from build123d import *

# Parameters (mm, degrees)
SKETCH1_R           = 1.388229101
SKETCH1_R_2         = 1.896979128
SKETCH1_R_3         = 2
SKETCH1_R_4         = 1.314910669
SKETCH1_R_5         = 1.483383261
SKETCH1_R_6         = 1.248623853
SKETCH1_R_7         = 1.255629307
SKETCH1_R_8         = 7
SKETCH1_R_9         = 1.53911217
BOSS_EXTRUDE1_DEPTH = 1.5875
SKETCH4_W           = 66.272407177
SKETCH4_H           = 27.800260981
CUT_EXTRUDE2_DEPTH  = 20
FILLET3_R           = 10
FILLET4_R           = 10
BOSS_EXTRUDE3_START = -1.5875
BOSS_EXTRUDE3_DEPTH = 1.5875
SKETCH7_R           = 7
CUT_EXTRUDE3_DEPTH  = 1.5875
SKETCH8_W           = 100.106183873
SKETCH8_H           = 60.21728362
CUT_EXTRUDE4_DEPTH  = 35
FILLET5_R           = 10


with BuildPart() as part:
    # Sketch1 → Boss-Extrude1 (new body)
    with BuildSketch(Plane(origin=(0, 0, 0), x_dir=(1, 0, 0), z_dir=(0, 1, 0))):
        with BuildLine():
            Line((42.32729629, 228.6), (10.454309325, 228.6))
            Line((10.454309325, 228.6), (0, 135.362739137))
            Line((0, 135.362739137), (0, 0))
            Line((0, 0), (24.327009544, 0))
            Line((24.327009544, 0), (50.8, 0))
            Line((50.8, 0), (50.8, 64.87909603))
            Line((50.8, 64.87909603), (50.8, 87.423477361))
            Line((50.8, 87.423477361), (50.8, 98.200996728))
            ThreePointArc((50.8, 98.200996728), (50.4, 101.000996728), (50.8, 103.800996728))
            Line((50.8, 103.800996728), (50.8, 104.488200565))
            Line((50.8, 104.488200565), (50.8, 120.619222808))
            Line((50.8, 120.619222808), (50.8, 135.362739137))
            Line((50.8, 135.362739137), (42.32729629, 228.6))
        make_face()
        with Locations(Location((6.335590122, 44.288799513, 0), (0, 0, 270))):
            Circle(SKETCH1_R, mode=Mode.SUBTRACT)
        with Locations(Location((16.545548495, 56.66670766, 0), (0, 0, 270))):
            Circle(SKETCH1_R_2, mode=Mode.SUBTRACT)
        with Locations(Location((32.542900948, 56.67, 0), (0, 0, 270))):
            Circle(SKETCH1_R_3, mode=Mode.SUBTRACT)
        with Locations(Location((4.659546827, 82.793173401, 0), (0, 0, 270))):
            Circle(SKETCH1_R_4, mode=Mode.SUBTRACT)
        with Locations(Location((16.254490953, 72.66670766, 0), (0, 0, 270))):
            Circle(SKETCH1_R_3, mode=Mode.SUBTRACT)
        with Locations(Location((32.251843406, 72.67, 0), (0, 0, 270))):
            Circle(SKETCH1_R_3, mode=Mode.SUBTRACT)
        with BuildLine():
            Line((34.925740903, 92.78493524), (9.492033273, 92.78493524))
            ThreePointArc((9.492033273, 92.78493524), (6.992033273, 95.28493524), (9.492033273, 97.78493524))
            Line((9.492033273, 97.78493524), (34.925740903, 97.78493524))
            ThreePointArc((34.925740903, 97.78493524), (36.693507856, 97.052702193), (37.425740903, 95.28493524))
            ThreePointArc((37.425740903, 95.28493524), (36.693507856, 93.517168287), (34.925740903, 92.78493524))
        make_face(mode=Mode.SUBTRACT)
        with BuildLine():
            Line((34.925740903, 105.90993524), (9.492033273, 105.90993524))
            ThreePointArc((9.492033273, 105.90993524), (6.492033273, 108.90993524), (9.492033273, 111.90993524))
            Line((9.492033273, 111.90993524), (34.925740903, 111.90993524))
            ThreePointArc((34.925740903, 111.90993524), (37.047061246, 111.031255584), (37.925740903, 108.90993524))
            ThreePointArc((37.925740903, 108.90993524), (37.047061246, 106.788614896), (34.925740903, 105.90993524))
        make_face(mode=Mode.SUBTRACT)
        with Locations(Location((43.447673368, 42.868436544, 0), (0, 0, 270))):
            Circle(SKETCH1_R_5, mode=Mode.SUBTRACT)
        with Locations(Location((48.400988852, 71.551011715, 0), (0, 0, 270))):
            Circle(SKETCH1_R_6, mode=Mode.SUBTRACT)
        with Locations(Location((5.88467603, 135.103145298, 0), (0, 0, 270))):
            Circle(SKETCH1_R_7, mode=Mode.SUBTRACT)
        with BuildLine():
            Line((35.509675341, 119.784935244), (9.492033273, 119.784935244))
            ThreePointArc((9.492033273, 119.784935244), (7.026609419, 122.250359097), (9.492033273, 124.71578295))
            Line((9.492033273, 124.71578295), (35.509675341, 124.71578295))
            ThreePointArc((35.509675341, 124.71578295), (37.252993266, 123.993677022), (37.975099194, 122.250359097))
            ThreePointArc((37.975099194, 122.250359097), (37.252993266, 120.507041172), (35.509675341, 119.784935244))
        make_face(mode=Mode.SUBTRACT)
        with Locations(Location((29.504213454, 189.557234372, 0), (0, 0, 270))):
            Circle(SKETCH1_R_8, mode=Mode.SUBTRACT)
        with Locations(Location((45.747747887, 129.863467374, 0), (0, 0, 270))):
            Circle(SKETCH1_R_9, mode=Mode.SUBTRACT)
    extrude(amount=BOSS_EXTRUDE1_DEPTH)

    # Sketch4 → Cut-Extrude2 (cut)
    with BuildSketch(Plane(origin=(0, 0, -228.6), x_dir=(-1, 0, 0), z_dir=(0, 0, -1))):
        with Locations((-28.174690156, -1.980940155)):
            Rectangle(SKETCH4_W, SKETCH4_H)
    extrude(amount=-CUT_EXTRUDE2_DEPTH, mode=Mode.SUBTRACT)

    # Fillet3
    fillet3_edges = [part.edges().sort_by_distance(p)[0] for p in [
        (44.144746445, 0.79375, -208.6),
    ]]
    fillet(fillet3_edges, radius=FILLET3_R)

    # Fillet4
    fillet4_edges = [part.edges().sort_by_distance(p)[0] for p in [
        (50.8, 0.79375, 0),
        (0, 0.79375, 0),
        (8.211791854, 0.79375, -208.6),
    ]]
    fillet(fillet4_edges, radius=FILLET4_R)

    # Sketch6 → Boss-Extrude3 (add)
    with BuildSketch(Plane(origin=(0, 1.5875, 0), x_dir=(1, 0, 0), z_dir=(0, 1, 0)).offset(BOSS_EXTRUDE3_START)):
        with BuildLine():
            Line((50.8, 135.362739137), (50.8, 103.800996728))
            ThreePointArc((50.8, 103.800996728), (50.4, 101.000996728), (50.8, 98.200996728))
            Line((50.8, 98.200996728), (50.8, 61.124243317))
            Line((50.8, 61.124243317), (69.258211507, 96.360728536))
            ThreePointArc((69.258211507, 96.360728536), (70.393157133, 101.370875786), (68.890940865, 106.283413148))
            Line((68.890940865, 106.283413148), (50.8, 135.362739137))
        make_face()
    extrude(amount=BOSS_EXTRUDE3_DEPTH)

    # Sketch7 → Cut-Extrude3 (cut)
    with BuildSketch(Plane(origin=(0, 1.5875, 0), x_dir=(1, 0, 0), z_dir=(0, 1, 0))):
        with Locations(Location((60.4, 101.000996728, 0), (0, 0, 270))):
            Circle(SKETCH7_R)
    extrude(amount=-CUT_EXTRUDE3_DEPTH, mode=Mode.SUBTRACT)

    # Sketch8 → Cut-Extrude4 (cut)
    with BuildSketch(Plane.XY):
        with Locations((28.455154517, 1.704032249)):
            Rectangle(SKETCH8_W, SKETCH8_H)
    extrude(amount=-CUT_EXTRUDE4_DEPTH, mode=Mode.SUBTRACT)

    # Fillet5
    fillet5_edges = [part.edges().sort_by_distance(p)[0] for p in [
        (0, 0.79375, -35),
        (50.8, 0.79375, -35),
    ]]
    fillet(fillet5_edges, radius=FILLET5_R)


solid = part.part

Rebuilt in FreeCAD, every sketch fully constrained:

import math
import FreeCAD as App
import Part
import Sketcher

V = App.Vector
Q = App.Units.Quantity


def edges_at(feature, points):
    """Names of the edges that pass closest to the given points."""
    edges = feature.Shape.Edges
    near = lambda p: min(range(len(edges)), key=lambda i: edges[i].distToShape(Part.Vertex(*p))[0])
    return sorted({f"Edge{near(p) + 1}" for p in points})

doc = App.newDocument("Part")
params = doc.addObject("Spreadsheet::Sheet", "Params")
for row, (alias, value) in enumerate([
    ("sketch1_diameter", "4 mm"),
    ("sketch1_diameter2", "14 mm"),
    ("sketch1_radius", "10 mm"),
    ("sketch1_radius2", "3 mm"),
    ("sketch1_radius3", "2.5 mm"),
    ("pad1_length", "1.5875 mm"),
    ("pocket1_length", "20 mm"),
    ("fillet_radius", "10 mm"),
    ("fillet2_radius", "10 mm"),
    ("sketch3_radius", "10 mm"),
    ("pad2_length", "1.5875 mm"),
    ("sketch4_diameter", "14 mm"),
    ("pocket2_length", "1.5875 mm"),
    ("pocket3_length", "35 mm"),
    ("fillet3_radius", "10 mm"),
], start=1):
    params.set(f"A{row}", alias)
    params.set(f"B{row}", "=" + value)
    params.setAlias(f"B{row}", alias)

body = doc.addObject("PartDesign::Body", "Body")

sketch1 = doc.addObject("Sketcher::SketchObject", "Sketch")
body.addObject(sketch1)
sketch1.AttachmentSupport = (doc.XZ_Plane, [""])
sketch1.MapMode = "FlatFace"
sketch1.addGeometry(Part.LineSegment(V(42.3, -228.6, 0), V(10.5, -228.6, 0)), False)
sketch1.addGeometry(Part.LineSegment(V(10.5, -228.6, 0), V(0, -135.4, 0)), False)
sketch1.addGeometry(Part.LineSegment(V(0, -135.4, 0), V(0, 0, 0)), False)
sketch1.addGeometry(Part.LineSegment(V(0, 0, 0), V(50.8, 0, 0)), False)
sketch1.addGeometry(Part.LineSegment(V(50.8, 0, 0), V(50.8, -98.2, 0)), False)
sketch1.addGeometry(Part.ArcOfCircle(Part.Circle(V(60.4, -101, 0), V(0, 0, 1), 10), math.radians(164), math.radians(196)), False)
sketch1.addGeometry(Part.LineSegment(V(50.8, -103.8, 0), V(50.8, -135.4, 0)), False)
sketch1.addGeometry(Part.LineSegment(V(50.8, -135.4, 0), V(42.3, -228.6, 0)), False)
sketch1.addGeometry(Part.Circle(V(6.3, -44.3, 0), V(0, 0, 1), 1.4), False)
sketch1.addGeometry(Part.Circle(V(16.5, -56.7, 0), V(0, 0, 1), 1.9), False)
sketch1.addGeometry(Part.Circle(V(16.3, -72.7, 0), V(0, 0, 1), 2), False)
sketch1.addGeometry(Part.Circle(V(4.7, -82.8, 0), V(0, 0, 1), 1.3), False)
sketch1.addGeometry(Part.ArcOfCircle(Part.Circle(V(34.9, -95.3, 0), V(0, 0, 1), 2.5), math.radians(0), math.radians(90)), False)
sketch1.addGeometry(Part.LineSegment(V(34.9, -92.8, 0), V(9.5, -92.8, 0)), False)
sketch1.addGeometry(Part.ArcOfCircle(Part.Circle(V(9.5, -95.3, 0), V(0, 0, 1), 2.5), math.radians(90), math.radians(270)), False)
sketch1.addGeometry(Part.LineSegment(V(9.5, -97.8, 0), V(34.9, -97.8, 0)), False)
sketch1.addGeometry(Part.ArcOfCircle(Part.Circle(V(34.9, -95.3, 0), V(0, 0, 1), 2.5), math.radians(-90), math.radians(0)), False)
sketch1.addGeometry(Part.ArcOfCircle(Part.Circle(V(34.9, -108.9, 0), V(0, 0, 1), 3), math.radians(0), math.radians(90)), False)
sketch1.addGeometry(Part.LineSegment(V(34.9, -105.9, 0), V(9.5, -105.9, 0)), False)
sketch1.addGeometry(Part.ArcOfCircle(Part.Circle(V(9.5, -108.9, 0), V(0, 0, 1), 3), math.radians(90), math.radians(270)), False)
sketch1.addGeometry(Part.LineSegment(V(9.5, -111.9, 0), V(34.9, -111.9, 0)), False)
sketch1.addGeometry(Part.ArcOfCircle(Part.Circle(V(34.9, -108.9, 0), V(0, 0, 1), 3), math.radians(-90), math.radians(0)), False)
sketch1.addGeometry(Part.Circle(V(32.5, -56.7, 0), V(0, 0, 1), 2), False)
sketch1.addGeometry(Part.Circle(V(32.3, -72.7, 0), V(0, 0, 1), 2), False)
sketch1.addGeometry(Part.Circle(V(43.4, -42.9, 0), V(0, 0, 1), 1.5), False)
sketch1.addGeometry(Part.Circle(V(48.4, -71.6, 0), V(0, 0, 1), 1.2), False)
sketch1.addGeometry(Part.Circle(V(5.9, -135.1, 0), V(0, 0, 1), 1.3), False)
sketch1.addGeometry(Part.ArcOfCircle(Part.Circle(V(35.5, -122.3, 0), V(0, 0, 1), 2.5), math.radians(0), math.radians(90)), False)
sketch1.addGeometry(Part.LineSegment(V(35.5, -119.8, 0), V(9.5, -119.8, 0)), False)
sketch1.addGeometry(Part.ArcOfCircle(Part.Circle(V(9.5, -122.3, 0), V(0, 0, 1), 2.5), math.radians(90), math.radians(270)), False)
sketch1.addGeometry(Part.LineSegment(V(9.5, -124.7, 0), V(35.5, -124.7, 0)), False)
sketch1.addGeometry(Part.ArcOfCircle(Part.Circle(V(35.5, -122.3, 0), V(0, 0, 1), 2.5), math.radians(-90), math.radians(0)), False)
sketch1.addGeometry(Part.Circle(V(45.7, -129.9, 0), V(0, 0, 1), 1.5), False)
sketch1.addGeometry(Part.Circle(V(29.5, -189.6, 0), V(0, 0, 1), 7), False)
sketch1.addConstraint(Sketcher.Constraint("Coincident", 0, 2, 1, 1))
sketch1.addConstraint(Sketcher.Constraint("Coincident", 1, 2, 2, 1))
sketch1.addConstraint(Sketcher.Constraint("Coincident", 2, 2, 3, 1))
sketch1.addConstraint(Sketcher.Constraint("Coincident", 3, 2, 4, 1))
sketch1.addConstraint(Sketcher.Constraint("Coincident", 4, 2, 5, 1))
sketch1.addConstraint(Sketcher.Constraint("Coincident", 5, 2, 6, 1))
sketch1.addConstraint(Sketcher.Constraint("Coincident", 6, 2, 7, 1))
sketch1.addConstraint(Sketcher.Constraint("Coincident", 7, 2, 0, 1))
sketch1.addConstraint(Sketcher.Constraint("Tangent", 12, 2, 13, 1))
sketch1.addConstraint(Sketcher.Constraint("Tangent", 13, 2, 14, 1))
sketch1.addConstraint(Sketcher.Constraint("Tangent", 14, 2, 15, 1))
sketch1.addConstraint(Sketcher.Constraint("Tangent", 15, 2, 16, 1))
sketch1.addConstraint(Sketcher.Constraint("Tangent", 16, 2, 12, 1))
sketch1.addConstraint(Sketcher.Constraint("Tangent", 17, 2, 18, 1))
sketch1.addConstraint(Sketcher.Constraint("Tangent", 18, 2, 19, 1))
sketch1.addConstraint(Sketcher.Constraint("Tangent", 19, 2, 20, 1))
sketch1.addConstraint(Sketcher.Constraint("Tangent", 20, 2, 21, 1))
sketch1.addConstraint(Sketcher.Constraint("Tangent", 21, 2, 17, 1))
sketch1.addConstraint(Sketcher.Constraint("Tangent", 27, 2, 28, 1))
sketch1.addConstraint(Sketcher.Constraint("Tangent", 28, 2, 29, 1))
sketch1.addConstraint(Sketcher.Constraint("Tangent", 29, 2, 30, 1))
sketch1.addConstraint(Sketcher.Constraint("Tangent", 30, 2, 31, 1))
sketch1.addConstraint(Sketcher.Constraint("Tangent", 31, 2, 27, 1))
sketch1.addConstraint(Sketcher.Constraint("Horizontal", 0))
sketch1.addConstraint(Sketcher.Constraint("Vertical", 2))
sketch1.addConstraint(Sketcher.Constraint("Horizontal", 3))
sketch1.addConstraint(Sketcher.Constraint("Vertical", 4))
sketch1.addConstraint(Sketcher.Constraint("Vertical", 6))
sketch1.addConstraint(Sketcher.Constraint("Horizontal", 13))
sketch1.addConstraint(Sketcher.Constraint("Horizontal", 15))
sketch1.addConstraint(Sketcher.Constraint("Horizontal", 18))
sketch1.addConstraint(Sketcher.Constraint("Horizontal", 20))
sketch1.addConstraint(Sketcher.Constraint("Horizontal", 28))
sketch1.addConstraint(Sketcher.Constraint("Horizontal", 30))
sketch1.addConstraint(Sketcher.Constraint("Coincident", 2, 2, -1, 1))
sketch1.addConstraint(Sketcher.Constraint("Equal", 12, 14))
sketch1.addConstraint(Sketcher.Constraint("Equal", 17, 19))
sketch1.addConstraint(Sketcher.Constraint("Equal", 10, 22))
sketch1.addConstraint(Sketcher.Constraint("Equal", 22, 23))
sketch1.addConstraint(Sketcher.Constraint("Equal", 27, 29))
sketch1.addConstraint(Sketcher.Constraint("Horizontal", 1, 2, 6, 2))
sketch1.addConstraint(Sketcher.Constraint("Horizontal", 14, 3, 16, 2))
sketch1.addConstraint(Sketcher.Constraint("Horizontal", 19, 3, 21, 2))
sketch1.addConstraint(Sketcher.Constraint("Horizontal", 29, 3, 31, 2))
sketch1.addConstraint(Sketcher.Constraint("Vertical", 16, 3, 17, 3))
sketch1.addConstraint(Sketcher.Constraint("Vertical", 14, 3, 19, 3))
sketch1.addConstraint(Sketcher.Constraint("Vertical", 19, 3, 29, 3))
sketch1.addConstraint(Sketcher.Constraint("Vertical", 4, 2, 5, 2))
sketch1.addConstraint(Sketcher.Constraint("Diameter", 10, Q("4 mm")))
sketch1.addConstraint(Sketcher.Constraint("Diameter", 33, Q("14 mm")))
sketch1.addConstraint(Sketcher.Constraint("Radius", 5, Q("10 mm")))
sketch1.addConstraint(Sketcher.Constraint("Radius", 17, Q("3 mm")))
sketch1.addConstraint(Sketcher.Constraint("Radius", 12, Q("2.5 mm")))
sketch1.addConstraint(Sketcher.Constraint("DistanceX", 3, 1, 3, 2, Q("50.8 mm")))
sketch1.addConstraint(Sketcher.Constraint("DistanceY", 10, 3, 9, 3, Q("16 mm")))
sketch1.addConstraint(Sketcher.Constraint("DistanceY", 23, 3, 22, 3, Q("16 mm")))
sketch1.addConstraint(Sketcher.Constraint("DistanceX", -1, 1, 5, 3, Q("60.4 mm")))
sketch1.addConstraint(Sketcher.Constraint("DistanceY", 0, 2, -1, 1, Q("228.6 mm")))
sketch1.addConstraint(Sketcher.Constraint("Diameter", 8, Q("2.776458 mm")))
sketch1.addConstraint(Sketcher.Constraint("Diameter", 9, Q("3.793958 mm")))
sketch1.addConstraint(Sketcher.Constraint("Diameter", 11, Q("2.629821 mm")))
sketch1.addConstraint(Sketcher.Constraint("Diameter", 26, Q("2.511259 mm")))
sketch1.addConstraint(Sketcher.Constraint("DistanceY", 22, 3, -1, 1, Q("56.67 mm")))
sketch1.addConstraint(Sketcher.Constraint("Diameter", 24, Q("2.966767 mm")))
sketch1.addConstraint(Sketcher.Constraint("Diameter", 25, Q("2.497248 mm")))
sketch1.addConstraint(Sketcher.Constraint("Diameter", 32, Q("3.078224 mm")))
sketch1.addConstraint(Sketcher.Constraint("Radius", 27, Q("2.465424 mm")))
sketch1.addConstraint(Sketcher.Constraint("DistanceX", 11, 3, 9, 3, Q("11.886002 mm")))
sketch1.addConstraint(Sketcher.Constraint("DistanceY", 17, 3, 12, 3, Q("13.625 mm")))
sketch1.addConstraint(Sketcher.Constraint("DistanceY", 27, 2, 20, 2, Q("7.875 mm")))
sketch1.addConstraint(Sketcher.Constraint("DistanceY", 2, 1, 2, 2, Q("135.362739 mm")))
sketch1.addConstraint(Sketcher.Constraint("DistanceY", 8, 3, -1, 1, Q("44.2888 mm")))
sketch1.addConstraint(Sketcher.Constraint("DistanceX", -1, 1, 22, 3, Q("32.542901 mm")))
sketch1.addConstraint(Sketcher.Constraint("DistanceX", -1, 1, 31, 2, Q("37.975099 mm")))
sketch1.addConstraint(Sketcher.Constraint("DistanceX", 8, 3, 10, 3, Q("9.918901 mm")))
sketch1.addConstraint(Sketcher.Constraint("Distance", 1, Q("93.821529 mm")))
sketch1.addConstraint(Sketcher.Constraint("DistanceX", 0, 2, 0, 1, Q("31.872987 mm")))
sketch1.addConstraint(Sketcher.Constraint("DistanceX", 13, 2, 13, 1, Q("25.433708 mm")))
sketch1.addConstraint(Sketcher.Constraint("DistanceX", 28, 2, 28, 1, Q("26.017642 mm")))
sketch1.addConstraint(Sketcher.Constraint("DistanceY", 4, 2, 4, 1, Q("98.200997 mm")))
sketch1.addConstraint(Sketcher.Constraint("DistanceX", -1, 1, 8, 3, Q("6.33559 mm")))
sketch1.addConstraint(Sketcher.Constraint("DistanceX", -1, 1, 9, 3, Q("16.545548 mm")))
sketch1.addConstraint(Sketcher.Constraint("DistanceX", -1, 1, 25, 3, Q("48.400989 mm")))
sketch1.addConstraint(Sketcher.Constraint("DistanceY", 25, 3, -1, 1, Q("71.551012 mm")))
sketch1.addConstraint(Sketcher.Constraint("DistanceY", 27, 3, -1, 1, Q("122.250359 mm")))
sketch1.addConstraint(Sketcher.Constraint("DistanceY", 9, 3, 8, 3, Q("12.377908 mm")))
sketch1.addConstraint(Sketcher.Constraint("DistanceY", 12, 3, 11, 3, Q("12.491762 mm")))
sketch1.addConstraint(Sketcher.Constraint("DistanceY", 9, 3, 24, 3, Q("13.798271 mm")))
sketch1.addConstraint(Sketcher.Constraint("DistanceX", 23, 3, 24, 3, Q("11.19583 mm")))
sketch1.addConstraint(Sketcher.Constraint("DistanceY", 26, 3, 19, 3, Q("26.19321 mm")))
sketch1.addConstraint(Sketcher.Constraint("DistanceY", 32, 3, 27, 3, Q("7.613108 mm")))
sketch1.addConstraint(Sketcher.Constraint("DistanceY", 33, 3, 26, 3, Q("54.454089 mm")))
sketch1.addConstraint(Sketcher.Constraint("DistanceX", 33, 3, 27, 3, Q("6.005462 mm")))
sketch1.addConstraint(Sketcher.Constraint("DistanceX", 0, 2, 32, 3, Q("35.293439 mm")))
sketch1.addConstraint(Sketcher.Constraint("DistanceX", 26, 3, 7, 2, Q("36.44262 mm")))
sketch1.addConstraint(Sketcher.Constraint("DistanceX", -1, 1, 23, 3, Q("32.251843 mm")))
sketch1.setExpression("Constraints[48]", "Params.sketch1_diameter")
sketch1.setExpression("Constraints[49]", "Params.sketch1_diameter2")
sketch1.setExpression("Constraints[50]", "Params.sketch1_radius")
sketch1.setExpression("Constraints[51]", "Params.sketch1_radius2")
sketch1.setExpression("Constraints[52]", "Params.sketch1_radius3")
pad1 = doc.addObject("PartDesign::Pad", "Pad")
body.addObject(pad1)
pad1.Profile = sketch1
pad1.setExpression("Length", "Params.pad1_length")
pad1.Reversed = True

sketch2 = doc.addObject("Sketcher::SketchObject", "Sketch001")
body.addObject(sketch2)
sketch2.AttachmentSupport = (doc.XY_Plane, [""])
sketch2.MapMode = "FlatFace"
sketch2.AttachmentOffset = App.Placement(V(0, 0, -228.6), App.Rotation())
sketch2.addGeometry(Part.LineSegment(V(61, 12, 0), V(61, -16, 0)), False)
sketch2.addGeometry(Part.LineSegment(V(61, -16, 0), V(-5, -16, 0)), False)
sketch2.addGeometry(Part.LineSegment(V(-5, -16, 0), V(-5, 12, 0)), False)
sketch2.addGeometry(Part.LineSegment(V(-5, 12, 0), V(61, 12, 0)), False)
sketch2.addConstraint(Sketcher.Constraint("Coincident", 0, 2, 1, 1))
sketch2.addConstraint(Sketcher.Constraint("Coincident", 1, 2, 2, 1))
sketch2.addConstraint(Sketcher.Constraint("Coincident", 2, 2, 3, 1))
sketch2.addConstraint(Sketcher.Constraint("Coincident", 3, 2, 0, 1))
sketch2.addConstraint(Sketcher.Constraint("Vertical", 0))
sketch2.addConstraint(Sketcher.Constraint("Horizontal", 1))
sketch2.addConstraint(Sketcher.Constraint("Vertical", 2))
sketch2.addConstraint(Sketcher.Constraint("Horizontal", 3))
sketch2.addConstraint(Sketcher.Constraint("DistanceY", 0, 2, 0, 1, Q("27.800261 mm")))
sketch2.addConstraint(Sketcher.Constraint("DistanceX", 1, 2, 1, 1, Q("66.272407 mm")))
sketch2.addConstraint(Sketcher.Constraint("DistanceY", 0, 2, -1, 1, Q("15.881071 mm")))
sketch2.addConstraint(Sketcher.Constraint("DistanceX", -1, 1, 0, 2, Q("61.310894 mm")))
pocket1 = doc.addObject("PartDesign::Pocket", "Pocket")
body.addObject(pocket1)
pocket1.Profile = sketch2
pocket1.setExpression("Length", "Params.pocket1_length")
pocket1.Reversed = True
doc.recompute()

fillet = doc.addObject("PartDesign::Fillet", "Fillet")
body.addObject(fillet)
fillet.Base = (pocket1, edges_at(pocket1, [(44.145, 0.794, -208.6)]))
fillet.setExpression("Radius", "Params.fillet_radius")
doc.recompute()

fillet2 = doc.addObject("PartDesign::Fillet", "Fillet001")
body.addObject(fillet2)
fillet2.Base = (fillet, edges_at(fillet, [(50.8, 0.794, 0), (0, 0.794, 0), (8.212, 0.794, -208.6)]))
fillet2.setExpression("Radius", "Params.fillet2_radius")

sketch3 = doc.addObject("Sketcher::SketchObject", "Sketch002")
body.addObject(sketch3)
sketch3.AttachmentSupport = (doc.XZ_Plane, [""])
sketch3.MapMode = "FlatFace"
sketch3.addGeometry(Part.LineSegment(V(51, -135, 0), V(51, -104, 0)), False)
sketch3.addGeometry(Part.ArcOfCircle(Part.Circle(V(60, -101, 0), V(0, 0, 1), 10), math.radians(164), math.radians(196)), False)
sketch3.addGeometry(Part.LineSegment(V(51, -98, 0), V(51, -61, 0)), False)
sketch3.addGeometry(Part.LineSegment(V(51, -61, 0), V(69, -96, 0)), False)
sketch3.addGeometry(Part.ArcOfCircle(Part.Circle(V(60, -101, 0), V(0, 0, 1), 10), math.radians(-32), math.radians(28)), False)
sketch3.addGeometry(Part.LineSegment(V(69, -106, 0), V(51, -135, 0)), False)
sketch3.addConstraint(Sketcher.Constraint("Coincident", 0, 2, 1, 2))
sketch3.addConstraint(Sketcher.Constraint("Coincident", 1, 1, 2, 1))
sketch3.addConstraint(Sketcher.Constraint("Coincident", 2, 2, 3, 1))
sketch3.addConstraint(Sketcher.Constraint("Tangent", 3, 2, 4, 2))
sketch3.addConstraint(Sketcher.Constraint("Tangent", 4, 1, 5, 1))
sketch3.addConstraint(Sketcher.Constraint("Coincident", 5, 2, 0, 1))
sketch3.addConstraint(Sketcher.Constraint("Vertical", 0))
sketch3.addConstraint(Sketcher.Constraint("Vertical", 2))
sketch3.addConstraint(Sketcher.Constraint("Coincident", 4, 3, 1, 3))
sketch3.addConstraint(Sketcher.Constraint("Equal", 1, 4))
sketch3.addConstraint(Sketcher.Constraint("Vertical", 0, 2, 1, 1))
sketch3.addConstraint(Sketcher.Constraint("Radius", 1, Q("10 mm")))
sketch3.addConstraint(Sketcher.Constraint("DistanceX", -1, 1, 1, 3, Q("60.4 mm")))
sketch3.addConstraint(Sketcher.Constraint("DistanceX", -1, 1, 0, 2, Q("50.8 mm")))
sketch3.addConstraint(Sketcher.Constraint("Distance", 3, Q("39.778329 mm")))
sketch3.addConstraint(Sketcher.Constraint("DistanceY", 0, 1, 0, 2, Q("31.561742 mm")))
sketch3.addConstraint(Sketcher.Constraint("DistanceY", 3, 2, -1, 1, Q("96.360729 mm")))
sketch3.setExpression("Constraints[11]", "Params.sketch3_radius")
pad2 = doc.addObject("PartDesign::Pad", "Pad001")
body.addObject(pad2)
pad2.Profile = sketch3
pad2.setExpression("Length", "Params.pad2_length")
pad2.Reversed = True

sketch4 = doc.addObject("Sketcher::SketchObject", "Sketch003")
body.addObject(sketch4)
sketch4.AttachmentSupport = (doc.XZ_Plane, [""])
sketch4.MapMode = "FlatFace"
sketch4.AttachmentOffset = App.Placement(V(0, 0, -1.5875), App.Rotation())
sketch4.addGeometry(Part.Circle(V(60, -101, 0), V(0, 0, 1), 7), False)
sketch4.addConstraint(Sketcher.Constraint("Diameter", 0, Q("14 mm")))
sketch4.addConstraint(Sketcher.Constraint("DistanceX", -1, 1, 0, 3, Q("60.4 mm")))
sketch4.addConstraint(Sketcher.Constraint("DistanceY", 0, 3, -1, 1, Q("101.000997 mm")))
sketch4.setExpression("Constraints[0]", "Params.sketch4_diameter")
pocket2 = doc.addObject("PartDesign::Pocket", "Pocket001")
body.addObject(pocket2)
pocket2.Profile = sketch4
pocket2.setExpression("Length", "Params.pocket2_length")
pocket2.Reversed = True

sketch5 = doc.addObject("Sketcher::SketchObject", "Sketch004")
body.addObject(sketch5)
sketch5.AttachmentSupport = (doc.XY_Plane, [""])
sketch5.MapMode = "FlatFace"
sketch5.addGeometry(Part.LineSegment(V(-22, 32, 0), V(-22, -28, 0)), False)
sketch5.addGeometry(Part.LineSegment(V(-22, -28, 0), V(79, -28, 0)), False)
sketch5.addGeometry(Part.LineSegment(V(79, -28, 0), V(79, 32, 0)), False)
sketch5.addGeometry(Part.LineSegment(V(79, 32, 0), V(-22, 32, 0)), False)
sketch5.addConstraint(Sketcher.Constraint("Coincident", 0, 2, 1, 1))
sketch5.addConstraint(Sketcher.Constraint("Coincident", 1, 2, 2, 1))
sketch5.addConstraint(Sketcher.Constraint("Coincident", 2, 2, 3, 1))
sketch5.addConstraint(Sketcher.Constraint("Coincident", 3, 2, 0, 1))
sketch5.addConstraint(Sketcher.Constraint("Vertical", 0))
sketch5.addConstraint(Sketcher.Constraint("Horizontal", 1))
sketch5.addConstraint(Sketcher.Constraint("Vertical", 2))
sketch5.addConstraint(Sketcher.Constraint("Horizontal", 3))
sketch5.addConstraint(Sketcher.Constraint("DistanceX", 1, 1, 1, 2, Q("100.106184 mm")))
sketch5.addConstraint(Sketcher.Constraint("DistanceY", 0, 2, 0, 1, Q("60.217284 mm")))
sketch5.addConstraint(Sketcher.Constraint("DistanceY", 0, 2, -1, 1, Q("28.40461 mm")))
sketch5.addConstraint(Sketcher.Constraint("DistanceX", 0, 2, -1, 1, Q("21.597937 mm")))
pocket3 = doc.addObject("PartDesign::Pocket", "Pocket002")
body.addObject(pocket3)
pocket3.Profile = sketch5
pocket3.setExpression("Length", "Params.pocket3_length")
doc.recompute()

fillet3 = doc.addObject("PartDesign::Fillet", "Fillet002")
body.addObject(fillet3)
fillet3.Base = (pocket3, edges_at(pocket3, [(0, 0.794, -35), (50.8, 0.794, -35)]))
fillet3.setExpression("Radius", "Params.fillet3_radius")

doc.recompute()
